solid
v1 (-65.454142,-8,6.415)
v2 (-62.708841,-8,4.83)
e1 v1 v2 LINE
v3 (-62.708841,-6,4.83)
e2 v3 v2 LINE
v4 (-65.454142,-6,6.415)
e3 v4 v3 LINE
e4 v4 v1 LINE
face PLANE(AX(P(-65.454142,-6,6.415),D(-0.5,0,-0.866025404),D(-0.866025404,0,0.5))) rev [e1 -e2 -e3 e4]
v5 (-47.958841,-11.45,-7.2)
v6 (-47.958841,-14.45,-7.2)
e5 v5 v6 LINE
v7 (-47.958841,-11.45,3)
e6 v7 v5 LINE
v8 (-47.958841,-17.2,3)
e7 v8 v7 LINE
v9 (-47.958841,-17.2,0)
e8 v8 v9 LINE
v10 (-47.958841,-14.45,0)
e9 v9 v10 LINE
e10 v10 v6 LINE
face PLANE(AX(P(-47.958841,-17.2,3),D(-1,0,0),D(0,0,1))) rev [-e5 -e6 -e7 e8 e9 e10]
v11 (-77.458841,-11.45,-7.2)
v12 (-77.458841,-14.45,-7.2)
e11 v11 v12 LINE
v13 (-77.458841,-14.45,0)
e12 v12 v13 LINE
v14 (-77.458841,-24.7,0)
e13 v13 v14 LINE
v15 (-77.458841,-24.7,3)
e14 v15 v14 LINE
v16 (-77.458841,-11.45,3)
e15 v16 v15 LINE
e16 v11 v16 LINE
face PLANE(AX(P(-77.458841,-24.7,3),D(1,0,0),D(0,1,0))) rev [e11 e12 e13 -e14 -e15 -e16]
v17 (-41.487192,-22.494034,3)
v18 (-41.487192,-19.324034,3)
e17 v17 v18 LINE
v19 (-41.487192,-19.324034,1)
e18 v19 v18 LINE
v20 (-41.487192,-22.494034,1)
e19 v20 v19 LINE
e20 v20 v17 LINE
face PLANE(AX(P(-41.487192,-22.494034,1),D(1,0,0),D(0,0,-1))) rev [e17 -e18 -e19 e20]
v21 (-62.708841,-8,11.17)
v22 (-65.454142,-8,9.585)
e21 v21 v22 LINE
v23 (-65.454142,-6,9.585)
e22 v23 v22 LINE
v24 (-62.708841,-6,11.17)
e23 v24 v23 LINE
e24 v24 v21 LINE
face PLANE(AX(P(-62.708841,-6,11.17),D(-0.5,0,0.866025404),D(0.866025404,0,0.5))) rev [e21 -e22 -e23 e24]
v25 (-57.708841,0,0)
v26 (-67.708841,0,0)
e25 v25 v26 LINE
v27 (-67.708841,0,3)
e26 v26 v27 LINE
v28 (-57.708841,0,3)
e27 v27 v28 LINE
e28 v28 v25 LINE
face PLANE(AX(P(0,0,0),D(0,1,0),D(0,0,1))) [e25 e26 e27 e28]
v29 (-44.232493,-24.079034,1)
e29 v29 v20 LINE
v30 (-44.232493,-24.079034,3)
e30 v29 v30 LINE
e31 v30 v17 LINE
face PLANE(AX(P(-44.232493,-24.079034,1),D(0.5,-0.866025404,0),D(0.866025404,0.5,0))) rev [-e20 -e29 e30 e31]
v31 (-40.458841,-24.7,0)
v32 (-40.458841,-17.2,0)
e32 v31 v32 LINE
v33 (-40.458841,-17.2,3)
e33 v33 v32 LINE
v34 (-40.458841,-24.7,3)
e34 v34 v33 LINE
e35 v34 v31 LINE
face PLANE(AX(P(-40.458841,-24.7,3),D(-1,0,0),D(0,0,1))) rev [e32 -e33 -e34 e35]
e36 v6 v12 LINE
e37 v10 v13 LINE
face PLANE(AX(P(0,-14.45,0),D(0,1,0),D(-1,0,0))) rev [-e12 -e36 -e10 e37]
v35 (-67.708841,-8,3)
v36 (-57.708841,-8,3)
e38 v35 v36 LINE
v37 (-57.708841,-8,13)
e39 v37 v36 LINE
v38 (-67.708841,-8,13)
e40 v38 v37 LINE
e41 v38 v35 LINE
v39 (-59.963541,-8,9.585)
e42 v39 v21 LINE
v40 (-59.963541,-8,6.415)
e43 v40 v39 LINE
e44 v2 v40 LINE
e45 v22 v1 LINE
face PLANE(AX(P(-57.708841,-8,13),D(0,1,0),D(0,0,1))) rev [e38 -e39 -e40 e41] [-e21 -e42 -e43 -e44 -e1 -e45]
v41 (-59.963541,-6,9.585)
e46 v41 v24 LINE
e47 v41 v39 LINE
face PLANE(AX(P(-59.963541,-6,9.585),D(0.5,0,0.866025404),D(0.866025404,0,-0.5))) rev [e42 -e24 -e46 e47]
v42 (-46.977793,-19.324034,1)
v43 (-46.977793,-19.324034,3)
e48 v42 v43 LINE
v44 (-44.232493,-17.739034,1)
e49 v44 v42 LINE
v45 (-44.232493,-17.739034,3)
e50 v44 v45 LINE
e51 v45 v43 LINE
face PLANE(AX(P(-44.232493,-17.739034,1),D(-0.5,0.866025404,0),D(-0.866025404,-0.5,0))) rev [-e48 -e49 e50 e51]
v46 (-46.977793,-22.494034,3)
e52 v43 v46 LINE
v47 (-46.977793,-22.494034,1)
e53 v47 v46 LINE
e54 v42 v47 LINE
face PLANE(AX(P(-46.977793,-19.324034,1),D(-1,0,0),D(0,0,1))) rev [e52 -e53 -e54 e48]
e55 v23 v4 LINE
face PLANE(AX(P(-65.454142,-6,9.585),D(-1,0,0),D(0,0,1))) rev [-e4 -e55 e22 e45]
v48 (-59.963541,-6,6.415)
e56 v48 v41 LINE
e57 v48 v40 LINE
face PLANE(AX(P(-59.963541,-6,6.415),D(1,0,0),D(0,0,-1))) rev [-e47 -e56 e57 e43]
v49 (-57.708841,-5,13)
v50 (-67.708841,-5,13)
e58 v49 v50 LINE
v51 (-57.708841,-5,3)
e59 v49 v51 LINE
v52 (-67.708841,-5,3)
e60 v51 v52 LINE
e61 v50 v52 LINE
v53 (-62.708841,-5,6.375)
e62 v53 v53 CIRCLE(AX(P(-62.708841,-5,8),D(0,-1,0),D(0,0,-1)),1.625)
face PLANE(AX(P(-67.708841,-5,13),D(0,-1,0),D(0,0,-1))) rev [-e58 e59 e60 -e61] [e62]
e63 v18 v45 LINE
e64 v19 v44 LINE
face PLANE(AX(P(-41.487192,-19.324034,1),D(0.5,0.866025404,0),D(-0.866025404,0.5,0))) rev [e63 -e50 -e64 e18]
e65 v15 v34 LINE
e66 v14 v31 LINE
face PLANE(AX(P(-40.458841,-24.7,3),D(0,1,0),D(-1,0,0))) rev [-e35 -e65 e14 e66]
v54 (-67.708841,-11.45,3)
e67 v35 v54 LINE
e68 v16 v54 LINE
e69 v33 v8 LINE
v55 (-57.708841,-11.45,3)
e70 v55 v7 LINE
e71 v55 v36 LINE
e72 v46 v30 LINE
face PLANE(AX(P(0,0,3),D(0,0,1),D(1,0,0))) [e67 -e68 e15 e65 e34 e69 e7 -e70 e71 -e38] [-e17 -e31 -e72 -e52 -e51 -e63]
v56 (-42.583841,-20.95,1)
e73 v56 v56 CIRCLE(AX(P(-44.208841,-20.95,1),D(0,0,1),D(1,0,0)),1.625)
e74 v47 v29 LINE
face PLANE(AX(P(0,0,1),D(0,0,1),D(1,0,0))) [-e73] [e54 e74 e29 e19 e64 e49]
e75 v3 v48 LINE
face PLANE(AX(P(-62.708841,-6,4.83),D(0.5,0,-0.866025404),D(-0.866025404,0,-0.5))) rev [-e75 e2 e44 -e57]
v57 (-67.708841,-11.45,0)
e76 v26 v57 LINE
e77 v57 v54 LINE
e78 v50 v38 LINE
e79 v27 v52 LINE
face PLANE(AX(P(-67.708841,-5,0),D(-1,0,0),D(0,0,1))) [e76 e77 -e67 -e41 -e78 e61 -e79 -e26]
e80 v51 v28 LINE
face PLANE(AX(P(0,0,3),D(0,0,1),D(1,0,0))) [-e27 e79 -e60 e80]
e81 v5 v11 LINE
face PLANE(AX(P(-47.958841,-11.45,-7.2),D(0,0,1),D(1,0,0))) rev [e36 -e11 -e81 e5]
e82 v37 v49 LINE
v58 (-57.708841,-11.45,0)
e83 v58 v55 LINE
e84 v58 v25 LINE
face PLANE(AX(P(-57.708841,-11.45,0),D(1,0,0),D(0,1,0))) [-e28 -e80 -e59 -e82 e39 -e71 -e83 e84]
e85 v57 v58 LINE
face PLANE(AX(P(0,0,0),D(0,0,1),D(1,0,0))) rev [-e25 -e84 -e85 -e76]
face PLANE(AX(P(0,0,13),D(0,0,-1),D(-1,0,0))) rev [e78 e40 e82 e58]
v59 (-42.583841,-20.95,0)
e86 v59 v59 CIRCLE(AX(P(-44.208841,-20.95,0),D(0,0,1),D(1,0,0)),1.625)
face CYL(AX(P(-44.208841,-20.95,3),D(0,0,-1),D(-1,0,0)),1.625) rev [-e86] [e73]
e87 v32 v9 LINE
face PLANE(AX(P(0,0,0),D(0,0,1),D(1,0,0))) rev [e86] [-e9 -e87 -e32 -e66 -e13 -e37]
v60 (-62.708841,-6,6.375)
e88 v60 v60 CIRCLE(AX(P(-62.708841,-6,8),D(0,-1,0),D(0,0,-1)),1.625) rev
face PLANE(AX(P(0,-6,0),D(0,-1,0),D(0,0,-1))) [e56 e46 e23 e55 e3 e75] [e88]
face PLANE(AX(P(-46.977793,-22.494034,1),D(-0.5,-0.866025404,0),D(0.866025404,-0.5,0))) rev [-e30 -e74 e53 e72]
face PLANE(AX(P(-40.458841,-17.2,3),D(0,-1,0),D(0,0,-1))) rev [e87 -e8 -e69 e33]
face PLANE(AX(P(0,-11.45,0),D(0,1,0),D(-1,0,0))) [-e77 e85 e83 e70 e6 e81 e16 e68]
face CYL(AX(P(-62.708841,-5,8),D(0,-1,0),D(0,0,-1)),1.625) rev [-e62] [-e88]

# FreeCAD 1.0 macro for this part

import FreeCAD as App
import Part
import Sketcher
Q = App.Units.Quantity

doc = App.newDocument("Part")
body = doc.addObject("PartDesign::Body", "Body")

# Sketch on XY plane
sketch1 = doc.addObject("Sketcher::SketchObject", "Sketch")
body.addObject(sketch1)
sketch1.AttachmentSupport = (doc.XY_Plane, [""])
sketch1.MapMode = "FlatFace"
sketch1.addGeometry([
    Part.LineSegment(App.Vector(-77.458841, -24.7, 0), App.Vector(-40.458841, -24.7, 0)),  # 0
    Part.LineSegment(App.Vector(-40.458841, -24.7, 0), App.Vector(-40.458841, -17.2, 0)),  # 1
    Part.LineSegment(App.Vector(-40.458841, -17.2, 0), App.Vector(-47.958841, -17.2, 0)),  # 2
    Part.LineSegment(App.Vector(-47.958841, -17.2, 0), App.Vector(-47.958841, -14.45, 0)),  # 3
    Part.LineSegment(App.Vector(-47.958841, -14.45, 0), App.Vector(-77.458841, -14.45, 0)),  # 4
    Part.LineSegment(App.Vector(-77.458841, -14.45, 0), App.Vector(-77.458841, -24.7, 0)),  # 5
    Part.Circle(App.Vector(-44.208841, -20.95, 0), App.Vector(0, 0, 1), 1.625),  # 6
], False)
sketch1.addConstraint([
    Sketcher.Constraint("Coincident", 0, 2, 1, 1),
    Sketcher.Constraint("Coincident", 1, 2, 2, 1),
    Sketcher.Constraint("Coincident", 2, 2, 3, 1),
    Sketcher.Constraint("Coincident", 3, 2, 4, 1),
    Sketcher.Constraint("Coincident", 4, 2, 5, 1),
    Sketcher.Constraint("Coincident", 5, 2, 0, 1),
    Sketcher.Constraint("Horizontal", 0),
    Sketcher.Constraint("Vertical", 1),
    Sketcher.Constraint("Horizontal", 2),
    Sketcher.Constraint("Vertical", 3),
    Sketcher.Constraint("Horizontal", 4),
    Sketcher.Constraint("Vertical", 5),
    Sketcher.Constraint("Equal", 2, 1),
    Sketcher.Constraint("Diameter", 6, 3.25),
    Sketcher.Constraint("DistanceX", 0, 1, 0, 2, 37.0),
    Sketcher.Constraint("DistanceX", 2, 2, 2, 1, 7.5),
    Sketcher.Constraint("DistanceY", 3, 1, 3, 2, 2.75),
    Sketcher.Constraint("DistanceY", 0, 2, -1, 1, 24.7),
    Sketcher.Constraint("DistanceY", 6, 3, 3, 2, 6.5),
    Sketcher.Constraint("DistanceX", 6, 3, 0, 2, 3.75),
    Sketcher.Constraint("DistanceX", 6, 3, -1, 1, 44.208841),
])
pad1 = doc.addObject("PartDesign::Pad", "Pad")
body.addObject(pad1)
pad1.Profile = sketch1
pad1.Length = 3

# Sketch on XY plane
sketch2 = doc.addObject("Sketcher::SketchObject", "Sketch001")
body.addObject(sketch2)
sketch2.AttachmentSupport = (doc.XY_Plane, [""])
sketch2.MapMode = "FlatFace"
sketch2.AttachmentOffset = App.Placement(App.Vector(0, 0, 3), App.Rotation())
sketch2.addGeometry([
    Part.LineSegment(App.Vector(-44.232493, -17.739034, 0), App.Vector(-46.977793, -19.324034, 0)),  # 0
    Part.LineSegment(App.Vector(-46.977793, -19.324034, 0), App.Vector(-46.977793, -22.494034, 0)),  # 1
    Part.LineSegment(App.Vector(-46.977793, -22.494034, 0), App.Vector(-44.232493, -24.079034, 0)),  # 2
    Part.LineSegment(App.Vector(-44.232493, -24.079034, 0), App.Vector(-41.487192, -22.494034, 0)),  # 3
    Part.LineSegment(App.Vector(-41.487192, -22.494034, 0), App.Vector(-41.487192, -19.324034, 0)),  # 4
    Part.LineSegment(App.Vector(-41.487192, -19.324034, 0), App.Vector(-44.232493, -17.739034, 0)),  # 5
], False)
sketch2.addConstraint([
    Sketcher.Constraint("Coincident", 0, 2, 1, 1),
    Sketcher.Constraint("Coincident", 1, 2, 2, 1),
    Sketcher.Constraint("Coincident", 2, 2, 3, 1),
    Sketcher.Constraint("Coincident", 3, 2, 4, 1),
    Sketcher.Constraint("Coincident", 4, 2, 5, 1),
    Sketcher.Constraint("Coincident", 5, 2, 0, 1),
    Sketcher.Constraint("Vertical", 1),
    Sketcher.Constraint("Vertical", 4),
    Sketcher.Constraint("Parallel", 0, 3),
    Sketcher.Constraint("Parallel", 2, 5),
    Sketcher.Constraint("Horizontal", 1, 2, 3, 2),
    Sketcher.Constraint("Horizontal", 0, 2, 4, 2),
    Sketcher.Constraint("Vertical", 2, 2, 5, 2),
    Sketcher.Constraint("Angle", 0, Q("-150 deg")),
    Sketcher.Constraint("DistanceY", 1, 2, 1, 1, 3.17),
    Sketcher.Constraint("Distance", 0, 3.17),
    Sketcher.Constraint("DistanceX", 0, 2, -1, 1, 46.977793),
    Sketcher.Constraint("DistanceY", 0, 2, -1, 1, 19.324034),
])
pocket1 = doc.addObject("PartDesign::Pocket", "Pocket")
body.addObject(pocket1)
pocket1.Profile = sketch2
pocket1.Length = 2

# Sketch on XZ plane
sketch3 = doc.addObject("Sketcher::SketchObject", "Sketch002")
body.addObject(sketch3)
sketch3.AttachmentSupport = (doc.XZ_Plane, [""])
sketch3.MapMode = "FlatFace"
sketch3.AttachmentOffset = App.Placement(App.Vector(0, 0, 14.45), App.Rotation())
sketch3.addGeometry([
    Part.LineSegment(App.Vector(-77.458841, -7.2, 0), App.Vector(-77.458841, 3, 0)),
    Part.LineSegment(App.Vector(-77.458841, 3, 0), App.Vector(-47.958841, 3, 0)),
    Part.LineSegment(App.Vector(-47.958841, 3, 0), App.Vector(-47.958841, -7.2, 0)),
    Part.LineSegment(App.Vector(-47.958841, -7.2, 0), App.Vector(-77.458841, -7.2, 0)),
], False)
sketch3.addConstraint([
    Sketcher.Constraint("Coincident", 0, 2, 1, 1),
    Sketcher.Constraint("Coincident", 1, 2, 2, 1),
    Sketcher.Constraint("Coincident", 2, 2, 3, 1),
    Sketcher.Constraint("Coincident", 3, 2, 0, 1),
    Sketcher.Constraint("Vertical", 0),
    Sketcher.Constraint("Horizontal", 1),
    Sketcher.Constraint("Vertical", 2),
    Sketcher.Constraint("Horizontal", 3),
    Sketcher.Constraint("DistanceX", 1, 1, 1, 2, 29.5),
    Sketcher.Constraint("DistanceY", 0, 1, 0, 2, 10.2),
    Sketcher.Constraint("DistanceY", -1, 1, 0, 2, 3.0),
    Sketcher.Constraint("DistanceX", 0, 2, -1, 1, 77.458841),
])
pad2 = doc.addObject("PartDesign::Pad", "Pad001")
body.addObject(pad2)
pad2.Profile = sketch3
pad2.Length = 3
pad2.Reversed = True

# Sketch on XY plane
sketch4 = doc.addObject("Sketcher::SketchObject", "Sketch003")
body.addObject(sketch4)
sketch4.AttachmentSupport = (doc.XY_Plane, [""])
sketch4.MapMode = "FlatFace"
sketch4.AttachmentOffset = App.Placement(App.Vector(0, 0, 3), App.Rotation())
sketch4.addGeometry([
    Part.LineSegment(App.Vector(-67.708841, -11.45, 0), App.Vector(-57.708841, -11.45, 0)),
    Part.LineSegment(App.Vector(-57.708841, -11.45, 0), App.Vector(-57.708841, -5, 0)),
    Part.LineSegment(App.Vector(-57.708841, -5, 0), App.Vector(-67.708841, -5, 0)),
    Part.LineSegment(App.Vector(-67.708841, -5, 0), App.Vector(-67.708841, -11.45, 0)),
], False)
sketch4.addConstraint([
    Sketcher.Constraint("Coincident", 0, 2, 1, 1),
    Sketcher.Constraint("Coincident", 1, 2, 2, 1),
    Sketcher.Constraint("Coincident", 2, 2, 3, 1),
    Sketcher.Constraint("Coincident", 3, 2, 0, 1),
    Sketcher.Constraint("Horizontal", 0),
    Sketcher.Constraint("Vertical", 1),
    Sketcher.Constraint("Horizontal", 2),
    Sketcher.Constraint("Vertical", 3),
    Sketcher.Constraint("DistanceX", 0, 1, 0, 2, 10.0),
    Sketcher.Constraint("DistanceY", 1, 2, -1, 1, 5.0),
    Sketcher.Constraint("DistanceY", 1, 1, 1, 2, 6.45),
    Sketcher.Constraint("DistanceX", 0, 2, -1, 1, 57.708841),
])
pad3 = doc.addObject("PartDesign::Pad", "Pad002")
body.addObject(pad3)
pad3.Profile = sketch4
pad3.Length = 3
pad3.Reversed = True

# Sketch on XZ plane
sketch5 = doc.addObject("Sketcher::SketchObject", "Sketch004")
body.addObject(sketch5)
sketch5.AttachmentSupport = (doc.XZ_Plane, [""])
sketch5.MapMode = "FlatFace"
sketch5.AttachmentOffset = App.Placement(App.Vector(0, 0, 5), App.Rotation())
sketch5.addGeometry([
    Part.LineSegment(App.Vector(-67.708841, 0, 0), App.Vector(-67.708841, 3, 0)),
    Part.LineSegment(App.Vector(-67.708841, 3, 0), App.Vector(-57.708841, 3, 0)),
    Part.LineSegment(App.Vector(-57.708841, 3, 0), App.Vector(-57.708841, 0, 0)),
    Part.LineSegment(App.Vector(-57.708841, 0, 0), App.Vector(-67.708841, 0, 0)),
], False)
sketch5.addConstraint([
    Sketcher.Constraint("Coincident", 0, 2, 1, 1),
    Sketcher.Constraint("Coincident", 1, 2, 2, 1),
    Sketcher.Constraint("Coincident", 2, 2, 3, 1),
    Sketcher.Constraint("Coincident", 3, 2, 0, 1),
    Sketcher.Constraint("Vertical", 0),
    Sketcher.Constraint("Horizontal", 1),
    Sketcher.Constraint("Vertical", 2),
    Sketcher.Constraint("Horizontal", 3),
    Sketcher.Constraint("PointOnObject", 2, 2, -1),
    Sketcher.Constraint("DistanceX", 1, 1, 1, 2, 10.0),
    Sketcher.Constraint("DistanceY", 0, 1, 0, 2, 3.0),
    Sketcher.Constraint("DistanceX", 0, 2, -1, 1, 67.708841),
])
pad4 = doc.addObject("PartDesign::Pad", "Pad003")
body.addObject(pad4)
pad4.Profile = sketch5
pad4.Length = 5
pad4.Reversed = True

# Sketch on XY plane
sketch6 = doc.addObject("Sketcher::SketchObject", "Sketch005")
body.addObject(sketch6)
sketch6.AttachmentSupport = (doc.XY_Plane, [""])
sketch6.MapMode = "FlatFace"
sketch6.AttachmentOffset = App.Placement(App.Vector(0, 0, 3), App.Rotation())
sketch6.addGeometry([
    Part.LineSegment(App.Vector(-67.708841, -5, 0), App.Vector(-67.708841, -8, 0)),
    Part.LineSegment(App.Vector(-67.708841, -8, 0), App.Vector(-57.708841, -8, 0)),
    Part.LineSegment(App.Vector(-57.708841, -8, 0), App.Vector(-57.708841, -5, 0)),
    Part.LineSegment(App.Vector(-57.708841, -5, 0), App.Vector(-67.708841, -5, 0)),
], False)
sketch6.addConstraint([
    Sketcher.Constraint("Coincident", 0, 2, 1, 1),
    Sketcher.Constraint("Coincident", 1, 2, 2, 1),
    Sketcher.Constraint("Coincident", 2, 2, 3, 1),
    Sketcher.Constraint("Coincident", 3, 2, 0, 1),
    Sketcher.Constraint("Vertical", 0),
    Sketcher.Constraint("Horizontal", 1),
    Sketcher.Constraint("Vertical", 2),
    Sketcher.Constraint("Horizontal", 3),
    Sketcher.Constraint("DistanceX", 1, 1, 1, 2, 10.0),
    Sketcher.Constraint("DistanceY", 0, 2, 0, 1, 3.0),
    Sketcher.Constraint("DistanceY", 0, 2, -1, 1, 8.0),
    Sketcher.Constraint("DistanceX", 0, 2, -1, 1, 67.708841),
])
pad5 = doc.addObject("PartDesign::Pad", "Pad004")
body.addObject(pad5)
pad5.Profile = sketch6
pad5.Length = 10

# Sketch on XZ plane
sketch7 = doc.addObject("Sketcher::SketchObject", "Sketch006")
body.addObject(sketch7)
sketch7.AttachmentSupport = (doc.XZ_Plane, [""])
sketch7.MapMode = "FlatFace"
sketch7.AttachmentOffset = App.Placement(App.Vector(0, 0, 8), App.Rotation())
sketch7.addGeometry(Part.Circle(App.Vector(-62.708841, 8, 0), App.Vector(0, 0, 1), 1.625), False)
sketch7.addConstraint([
    Sketcher.Constraint("Diameter", 0, 3.25),
    Sketcher.Constraint("DistanceY", -1, 1, 0, 3, 8.0),
    Sketcher.Constraint("DistanceX", 0, 3, -1, 1, 62.708841),
])
pocket2 = doc.addObject("PartDesign::Pocket", "Pocket001")
body.addObject(pocket2)
pocket2.Profile = sketch7
pocket2.Length = 3

# Sketch on XZ plane
sketch8 = doc.addObject("Sketcher::SketchObject", "Sketch007")
body.addObject(sketch8)
sketch8.AttachmentSupport = (doc.XZ_Plane, [""])
sketch8.MapMode = "FlatFace"
sketch8.AttachmentOffset = App.Placement(App.Vector(0, 0, 8), App.Rotation())
sketch8.addGeometry([
    Part.LineSegment(App.Vector(-62.708841, 4.83, 0), App.Vector(-59.963541, 6.415, 0)),  # 0
    Part.LineSegment(App.Vector(-59.963541, 6.415, 0), App.Vector(-59.963541, 9.585, 0)),  # 1
    Part.LineSegment(App.Vector(-59.963541, 9.585, 0), App.Vector(-62.708841, 11.17, 0)),  # 2
    Part.LineSegment(App.Vector(-62.708841, 11.17, 0), App.Vector(-65.454142, 9.585, 0)),  # 3
    Part.LineSegment(App.Vector(-65.454142, 9.585, 0), App.Vector(-65.454142, 6.415, 0)),  # 4
    Part.LineSegment(App.Vector(-65.454142, 6.415, 0), App.Vector(-62.708841, 4.83, 0)),  # 5
], False)
sketch8.addConstraint([
    Sketcher.Constraint("Coincident", 0, 2, 1, 1),
    Sketcher.Constraint("Coincident", 1, 2, 2, 1),
    Sketcher.Constraint("Coincident", 2, 2, 3, 1),
    Sketcher.Constraint("Coincident", 3, 2, 4, 1),
    Sketcher.Constraint("Coincident", 4, 2, 5, 1),
    Sketcher.Constraint("Coincident", 5, 2, 0, 1),
    Sketcher.Constraint("Vertical", 1),
    Sketcher.Constraint("Vertical", 4),
    Sketcher.Constraint("Parallel", 0, 3),
    Sketcher.Constraint("Parallel", 2, 5),
    Sketcher.Constraint("Horizontal", 1, 2, 3, 2),
    Sketcher.Constraint("Horizontal", 0, 2, 4, 2),
    Sketcher.Constraint("Vertical", 2, 2, 5, 2),
    Sketcher.Constraint("Angle", 0, Q("30 deg")),
    Sketcher.Constraint("DistanceY", 1, 1, 1, 2, 3.17),
    Sketcher.Constraint("Distance", 0, 3.17),
    Sketcher.Constraint("DistanceY", -1, 1, 2, 2, 11.17),
    Sketcher.Constraint("DistanceX", 0, 2, -1, 1, 59.963541),
])
pocket3 = doc.addObject("PartDesign::Pocket", "Pocket002")
body.addObject(pocket3)
pocket3.Profile = sketch8
pocket3.Length = 2

doc.recompute()
